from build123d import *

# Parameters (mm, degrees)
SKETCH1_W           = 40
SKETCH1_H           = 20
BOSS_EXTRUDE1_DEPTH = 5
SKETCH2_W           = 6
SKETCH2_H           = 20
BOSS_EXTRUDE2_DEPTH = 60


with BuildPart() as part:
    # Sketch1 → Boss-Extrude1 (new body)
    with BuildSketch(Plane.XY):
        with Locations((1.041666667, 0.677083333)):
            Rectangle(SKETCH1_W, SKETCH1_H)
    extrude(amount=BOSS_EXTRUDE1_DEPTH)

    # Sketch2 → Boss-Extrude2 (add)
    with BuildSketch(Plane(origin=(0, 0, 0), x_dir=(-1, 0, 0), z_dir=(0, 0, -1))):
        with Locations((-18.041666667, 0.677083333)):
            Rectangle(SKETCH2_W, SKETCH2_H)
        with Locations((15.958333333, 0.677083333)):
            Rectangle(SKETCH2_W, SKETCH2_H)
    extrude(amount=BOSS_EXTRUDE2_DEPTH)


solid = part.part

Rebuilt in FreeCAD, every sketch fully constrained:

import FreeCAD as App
import Part
import Sketcher
from FreeCAD import Vector

doc = App.newDocument("Part")
body = doc.addObject("PartDesign::Body", "Body")

sketch1 = body.newObject("Sketcher::SketchObject", "Sketch")
sketch1.AttachmentSupport = (doc.getObject("XY_Plane"), [""])
sketch1.MapMode = "FlatFace"
sketch1.addGeometry([
    Part.LineSegment(Vector(-19, 11, 0), Vector(-19, -9, 0)),
    Part.LineSegment(Vector(-19, -9, 0), Vector(21, -9, 0)),
    Part.LineSegment(Vector(21, -9, 0), Vector(21, 11, 0)),
    Part.LineSegment(Vector(21, 11, 0), Vector(-19, 11, 0)),
], False)
sketch1.addConstraint([
    Sketcher.Constraint("Coincident", 0, 2, 1, 1),
    Sketcher.Constraint("Coincident", 1, 2, 2, 1),
    Sketcher.Constraint("Coincident", 2, 2, 3, 1),
    Sketcher.Constraint("Coincident", 3, 2, 0, 1),
    Sketcher.Constraint("Vertical", 0),
    Sketcher.Constraint("Horizontal", 1),
    Sketcher.Constraint("Vertical", 2),
    Sketcher.Constraint("Horizontal", 3),
    Sketcher.Constraint("DistanceX", 1, 1, 1, 2, 40.0),
    Sketcher.Constraint("DistanceY", 0, 2, 0, 1, 20.0),
    Sketcher.Constraint("DistanceX", 0, 2, -1, 1, 18.958333),
    Sketcher.Constraint("DistanceY", 0, 2, -1, 1, 9.322917),
])
pad1 = body.newObject("PartDesign::Pad", "Pad")
pad1.Profile = sketch1
pad1.Length = 5

sketch2 = body.newObject("Sketcher::SketchObject", "Sketch001")
sketch2.AttachmentSupport = (doc.getObject("XY_Plane"), [""])
sketch2.MapMode = "FlatFace"
sketch2.addGeometry([
    Part.LineSegment(Vector(21, 11, 0), Vector(21, -9, 0)),
    Part.LineSegment(Vector(21, -9, 0), Vector(15, -9, 0)),
    Part.LineSegment(Vector(15, -9, 0), Vector(15, 11, 0)),
    Part.LineSegment(Vector(15, 11, 0), Vector(21, 11, 0)),
    Part.LineSegment(Vector(-13, 11, 0), Vector(-13, -9, 0)),
    Part.LineSegment(Vector(-13, -9, 0), Vector(-19, -9, 0)),
    Part.LineSegment(Vector(-19, -9, 0), Vector(-19, 11, 0)),
    Part.LineSegment(Vector(-19, 11, 0), Vector(-13, 11, 0)),
], False)
sketch2.addConstraint([
    Sketcher.Constraint("Coincident", 0, 2, 1, 1),
    Sketcher.Constraint("Coincident", 1, 2, 2, 1),
    Sketcher.Constraint("Coincident", 2, 2, 3, 1),
    Sketcher.Constraint("Coincident", 3, 2, 0, 1),
    Sketcher.Constraint("Coincident", 4, 2, 5, 1),
    Sketcher.Constraint("Coincident", 5, 2, 6, 1),
    Sketcher.Constraint("Coincident", 6, 2, 7, 1),
    Sketcher.Constraint("Coincident", 7, 2, 4, 1),
    Sketcher.Constraint("Vertical", 0),
    Sketcher.Constraint("Horizontal", 1),
    Sketcher.Constraint("Vertical", 2),
    Sketcher.Constraint("Horizontal", 3),
    Sketcher.Constraint("Vertical", 4),
    Sketcher.Constraint("Horizontal", 5),
    Sketcher.Constraint("Vertical", 6),
    Sketcher.Constraint("Horizontal", 7),
    Sketcher.Constraint("Horizontal", 1, 2, 4, 2),
    Sketcher.Constraint("Horizontal", 3, 2, 6, 2),
    Sketcher.Constraint("Equal", 3, 5),
    Sketcher.Constraint("DistanceX", 1, 2, 1, 1, 6.0),
    Sketcher.Constraint("DistanceY", 0, 2, 0, 1, 20.0),
    Sketcher.Constraint("DistanceX", 4, 2, 1, 2, 28.0),
    Sketcher.Constraint("DistanceX", -1, 1, 0, 2, 21.041667),
    Sketcher.Constraint("DistanceY", 0, 2, -1, 1, 9.322917),
])
pad2 = body.newObject("PartDesign::Pad", "Pad001")
pad2.Profile = sketch2
pad2.Length = 60
pad2.Reversed = True

doc.recompute()
